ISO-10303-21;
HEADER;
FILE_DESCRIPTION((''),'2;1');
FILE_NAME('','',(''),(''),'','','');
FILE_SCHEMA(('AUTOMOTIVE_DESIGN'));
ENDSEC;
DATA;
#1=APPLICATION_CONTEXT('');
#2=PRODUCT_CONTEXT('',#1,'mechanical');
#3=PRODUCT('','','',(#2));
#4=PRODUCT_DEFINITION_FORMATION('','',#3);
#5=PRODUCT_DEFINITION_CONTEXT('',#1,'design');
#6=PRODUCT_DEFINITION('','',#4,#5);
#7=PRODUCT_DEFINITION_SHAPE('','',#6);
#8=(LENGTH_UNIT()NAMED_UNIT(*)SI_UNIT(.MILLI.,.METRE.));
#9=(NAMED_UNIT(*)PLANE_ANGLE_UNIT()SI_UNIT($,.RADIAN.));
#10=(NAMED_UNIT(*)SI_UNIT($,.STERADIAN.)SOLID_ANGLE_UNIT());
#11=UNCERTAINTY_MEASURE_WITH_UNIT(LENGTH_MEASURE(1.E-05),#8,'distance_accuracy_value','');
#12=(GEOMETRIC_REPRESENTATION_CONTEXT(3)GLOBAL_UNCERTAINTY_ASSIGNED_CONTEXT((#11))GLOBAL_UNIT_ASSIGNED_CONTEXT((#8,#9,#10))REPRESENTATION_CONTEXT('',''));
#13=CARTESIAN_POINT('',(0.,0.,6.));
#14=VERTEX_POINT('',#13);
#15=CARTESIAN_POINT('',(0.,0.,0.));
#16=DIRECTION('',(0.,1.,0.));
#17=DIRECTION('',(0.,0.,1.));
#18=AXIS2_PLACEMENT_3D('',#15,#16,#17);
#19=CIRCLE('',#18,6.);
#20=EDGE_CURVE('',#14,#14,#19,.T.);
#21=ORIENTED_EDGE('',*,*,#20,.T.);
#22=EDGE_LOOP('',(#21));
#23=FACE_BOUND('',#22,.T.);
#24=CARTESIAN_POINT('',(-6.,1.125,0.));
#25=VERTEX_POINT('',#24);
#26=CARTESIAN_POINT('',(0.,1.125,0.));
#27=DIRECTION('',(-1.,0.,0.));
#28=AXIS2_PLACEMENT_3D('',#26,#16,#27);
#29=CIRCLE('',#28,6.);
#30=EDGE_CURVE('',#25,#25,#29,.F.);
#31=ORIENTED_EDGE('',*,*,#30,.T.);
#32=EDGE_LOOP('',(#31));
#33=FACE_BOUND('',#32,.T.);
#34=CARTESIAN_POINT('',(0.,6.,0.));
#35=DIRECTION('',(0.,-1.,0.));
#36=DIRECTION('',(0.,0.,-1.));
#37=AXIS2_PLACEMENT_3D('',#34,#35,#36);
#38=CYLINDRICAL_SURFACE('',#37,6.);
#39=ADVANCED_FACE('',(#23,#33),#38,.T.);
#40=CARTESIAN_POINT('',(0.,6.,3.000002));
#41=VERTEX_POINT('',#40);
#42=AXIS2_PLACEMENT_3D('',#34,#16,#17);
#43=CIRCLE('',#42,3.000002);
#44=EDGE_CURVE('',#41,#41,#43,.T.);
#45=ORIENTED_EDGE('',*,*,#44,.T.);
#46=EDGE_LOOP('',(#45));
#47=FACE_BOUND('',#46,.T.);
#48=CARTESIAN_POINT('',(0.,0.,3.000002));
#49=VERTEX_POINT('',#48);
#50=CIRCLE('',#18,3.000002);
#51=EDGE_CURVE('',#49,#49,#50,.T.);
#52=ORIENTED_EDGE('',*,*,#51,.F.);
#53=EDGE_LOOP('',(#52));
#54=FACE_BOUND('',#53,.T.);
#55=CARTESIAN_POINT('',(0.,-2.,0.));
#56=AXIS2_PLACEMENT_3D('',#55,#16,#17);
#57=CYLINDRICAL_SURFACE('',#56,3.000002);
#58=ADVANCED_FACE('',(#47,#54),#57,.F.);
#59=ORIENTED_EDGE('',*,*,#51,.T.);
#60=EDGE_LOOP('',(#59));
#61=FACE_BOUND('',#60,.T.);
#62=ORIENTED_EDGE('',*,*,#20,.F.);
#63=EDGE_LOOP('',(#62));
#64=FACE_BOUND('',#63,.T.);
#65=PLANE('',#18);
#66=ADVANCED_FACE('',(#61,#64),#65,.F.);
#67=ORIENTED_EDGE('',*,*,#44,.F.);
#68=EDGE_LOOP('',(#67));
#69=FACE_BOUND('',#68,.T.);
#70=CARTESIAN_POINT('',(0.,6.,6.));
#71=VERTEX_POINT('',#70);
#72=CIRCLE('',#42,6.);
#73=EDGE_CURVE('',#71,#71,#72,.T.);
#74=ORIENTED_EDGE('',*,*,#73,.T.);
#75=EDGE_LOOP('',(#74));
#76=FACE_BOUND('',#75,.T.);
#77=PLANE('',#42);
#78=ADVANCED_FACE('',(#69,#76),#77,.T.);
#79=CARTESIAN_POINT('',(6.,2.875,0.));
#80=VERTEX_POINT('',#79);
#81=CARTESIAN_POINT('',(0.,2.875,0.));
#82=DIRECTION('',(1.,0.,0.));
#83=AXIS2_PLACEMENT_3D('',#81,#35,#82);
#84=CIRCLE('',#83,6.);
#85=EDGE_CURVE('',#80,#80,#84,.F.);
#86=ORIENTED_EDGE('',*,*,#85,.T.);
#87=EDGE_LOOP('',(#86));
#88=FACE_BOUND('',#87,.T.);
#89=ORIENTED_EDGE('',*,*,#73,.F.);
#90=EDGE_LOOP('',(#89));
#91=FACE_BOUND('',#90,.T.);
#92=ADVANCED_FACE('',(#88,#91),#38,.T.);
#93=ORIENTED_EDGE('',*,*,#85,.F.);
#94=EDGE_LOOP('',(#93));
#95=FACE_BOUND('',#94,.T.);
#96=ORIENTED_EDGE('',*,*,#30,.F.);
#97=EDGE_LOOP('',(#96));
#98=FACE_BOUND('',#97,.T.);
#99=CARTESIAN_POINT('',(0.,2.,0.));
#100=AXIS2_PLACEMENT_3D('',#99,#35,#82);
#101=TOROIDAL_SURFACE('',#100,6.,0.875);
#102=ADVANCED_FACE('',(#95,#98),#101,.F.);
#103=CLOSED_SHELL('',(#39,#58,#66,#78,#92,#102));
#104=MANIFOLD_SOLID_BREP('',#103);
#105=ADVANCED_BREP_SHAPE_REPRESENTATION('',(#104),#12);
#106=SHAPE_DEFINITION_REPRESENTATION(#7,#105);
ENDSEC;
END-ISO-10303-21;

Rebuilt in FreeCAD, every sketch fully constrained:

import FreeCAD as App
import Part
import Sketcher

doc = App.newDocument("Part")
params = doc.addObject("Spreadsheet::Sheet", "Params")
for row, (alias, value) in enumerate([
    ("sketch1_diameter", "12 mm"),
    ("pad1_length", "6 mm"),
    ("sketch2_diameter", "1.75 mm"),
    ("groove_angle", "360 deg"),
    ("pocket1_length", "8 mm"),
], start=1):
    params.set(f"A{row}", alias)
    params.set(f"B{row}", "=" + value)
    params.setAlias(f"B{row}", alias)

body = doc.addObject("PartDesign::Body", "Body")

sketch1 = body.newObject("Sketcher::SketchObject", "Sketch")
sketch1.AttachmentSupport = (doc.getObject("XZ_Plane"), [""])
sketch1.MapMode = "FlatFace"
sketch1.addGeometry(Part.Circle(App.Vector(0, 0, 0), App.Vector(0, 0, 1), 6), False)
sketch1.addConstraint([
    Sketcher.Constraint("Coincident", 0, 3, -1, 1),
    Sketcher.Constraint("Diameter", 0, 12.0),
])
sketch1.setExpression("Constraints[1]", "Params.sketch1_diameter")
pad1 = body.newObject("PartDesign::Pad", "Pad")
pad1.Profile = sketch1
pad1.setExpression("Length", "Params.pad1_length")
pad1.Reversed = True

sketch2 = body.newObject("Sketcher::SketchObject", "Sketch001")
sketch2.AttachmentSupport = (doc.getObject("XY_Plane"), [""])
sketch2.MapMode = "FlatFace"
sketch2.addGeometry(Part.Circle(App.Vector(6, 2, 0), App.Vector(0, 0, 1), 0.875), False)
sketch2.addConstraint([
    Sketcher.Constraint("Diameter", 0, 1.75),
    Sketcher.Constraint("DistanceX", -1, 1, 0, 3, 6.0),
    Sketcher.Constraint("DistanceY", -1, 1, 0, 3, 2.0),
])
sketch2.setExpression("Constraints[0]", "Params.sketch2_diameter")
groove = body.newObject("PartDesign::Groove", "Groove")
groove.Profile = sketch2
groove.ReferenceAxis = (sketch2, ["V_Axis"])
groove.setExpression("Angle", "Params.groove_angle")

sketch3 = body.newObject("Sketcher::SketchObject", "Sketch002")
sketch3.AttachmentSupport = (doc.getObject("XZ_Plane"), [""])
sketch3.MapMode = "FlatFace"
sketch3.AttachmentOffset = App.Placement(App.Vector(0, 0, -6), App.Rotation())
sketch3.addGeometry(Part.Circle(App.Vector(0, 0, 0), App.Vector(0, 0, 1), 3.000002), False)
sketch3.addConstraint([
    Sketcher.Constraint("Coincident", 0, 3, -1, 1),
    Sketcher.Constraint("Diameter", 0, 6.000004),
])
pocket1 = body.newObject("PartDesign::Pocket", "Pocket")
pocket1.Profile = sketch3
pocket1.setExpression("Length", "Params.pocket1_length")
pocket1.Reversed = True

doc.recompute()
